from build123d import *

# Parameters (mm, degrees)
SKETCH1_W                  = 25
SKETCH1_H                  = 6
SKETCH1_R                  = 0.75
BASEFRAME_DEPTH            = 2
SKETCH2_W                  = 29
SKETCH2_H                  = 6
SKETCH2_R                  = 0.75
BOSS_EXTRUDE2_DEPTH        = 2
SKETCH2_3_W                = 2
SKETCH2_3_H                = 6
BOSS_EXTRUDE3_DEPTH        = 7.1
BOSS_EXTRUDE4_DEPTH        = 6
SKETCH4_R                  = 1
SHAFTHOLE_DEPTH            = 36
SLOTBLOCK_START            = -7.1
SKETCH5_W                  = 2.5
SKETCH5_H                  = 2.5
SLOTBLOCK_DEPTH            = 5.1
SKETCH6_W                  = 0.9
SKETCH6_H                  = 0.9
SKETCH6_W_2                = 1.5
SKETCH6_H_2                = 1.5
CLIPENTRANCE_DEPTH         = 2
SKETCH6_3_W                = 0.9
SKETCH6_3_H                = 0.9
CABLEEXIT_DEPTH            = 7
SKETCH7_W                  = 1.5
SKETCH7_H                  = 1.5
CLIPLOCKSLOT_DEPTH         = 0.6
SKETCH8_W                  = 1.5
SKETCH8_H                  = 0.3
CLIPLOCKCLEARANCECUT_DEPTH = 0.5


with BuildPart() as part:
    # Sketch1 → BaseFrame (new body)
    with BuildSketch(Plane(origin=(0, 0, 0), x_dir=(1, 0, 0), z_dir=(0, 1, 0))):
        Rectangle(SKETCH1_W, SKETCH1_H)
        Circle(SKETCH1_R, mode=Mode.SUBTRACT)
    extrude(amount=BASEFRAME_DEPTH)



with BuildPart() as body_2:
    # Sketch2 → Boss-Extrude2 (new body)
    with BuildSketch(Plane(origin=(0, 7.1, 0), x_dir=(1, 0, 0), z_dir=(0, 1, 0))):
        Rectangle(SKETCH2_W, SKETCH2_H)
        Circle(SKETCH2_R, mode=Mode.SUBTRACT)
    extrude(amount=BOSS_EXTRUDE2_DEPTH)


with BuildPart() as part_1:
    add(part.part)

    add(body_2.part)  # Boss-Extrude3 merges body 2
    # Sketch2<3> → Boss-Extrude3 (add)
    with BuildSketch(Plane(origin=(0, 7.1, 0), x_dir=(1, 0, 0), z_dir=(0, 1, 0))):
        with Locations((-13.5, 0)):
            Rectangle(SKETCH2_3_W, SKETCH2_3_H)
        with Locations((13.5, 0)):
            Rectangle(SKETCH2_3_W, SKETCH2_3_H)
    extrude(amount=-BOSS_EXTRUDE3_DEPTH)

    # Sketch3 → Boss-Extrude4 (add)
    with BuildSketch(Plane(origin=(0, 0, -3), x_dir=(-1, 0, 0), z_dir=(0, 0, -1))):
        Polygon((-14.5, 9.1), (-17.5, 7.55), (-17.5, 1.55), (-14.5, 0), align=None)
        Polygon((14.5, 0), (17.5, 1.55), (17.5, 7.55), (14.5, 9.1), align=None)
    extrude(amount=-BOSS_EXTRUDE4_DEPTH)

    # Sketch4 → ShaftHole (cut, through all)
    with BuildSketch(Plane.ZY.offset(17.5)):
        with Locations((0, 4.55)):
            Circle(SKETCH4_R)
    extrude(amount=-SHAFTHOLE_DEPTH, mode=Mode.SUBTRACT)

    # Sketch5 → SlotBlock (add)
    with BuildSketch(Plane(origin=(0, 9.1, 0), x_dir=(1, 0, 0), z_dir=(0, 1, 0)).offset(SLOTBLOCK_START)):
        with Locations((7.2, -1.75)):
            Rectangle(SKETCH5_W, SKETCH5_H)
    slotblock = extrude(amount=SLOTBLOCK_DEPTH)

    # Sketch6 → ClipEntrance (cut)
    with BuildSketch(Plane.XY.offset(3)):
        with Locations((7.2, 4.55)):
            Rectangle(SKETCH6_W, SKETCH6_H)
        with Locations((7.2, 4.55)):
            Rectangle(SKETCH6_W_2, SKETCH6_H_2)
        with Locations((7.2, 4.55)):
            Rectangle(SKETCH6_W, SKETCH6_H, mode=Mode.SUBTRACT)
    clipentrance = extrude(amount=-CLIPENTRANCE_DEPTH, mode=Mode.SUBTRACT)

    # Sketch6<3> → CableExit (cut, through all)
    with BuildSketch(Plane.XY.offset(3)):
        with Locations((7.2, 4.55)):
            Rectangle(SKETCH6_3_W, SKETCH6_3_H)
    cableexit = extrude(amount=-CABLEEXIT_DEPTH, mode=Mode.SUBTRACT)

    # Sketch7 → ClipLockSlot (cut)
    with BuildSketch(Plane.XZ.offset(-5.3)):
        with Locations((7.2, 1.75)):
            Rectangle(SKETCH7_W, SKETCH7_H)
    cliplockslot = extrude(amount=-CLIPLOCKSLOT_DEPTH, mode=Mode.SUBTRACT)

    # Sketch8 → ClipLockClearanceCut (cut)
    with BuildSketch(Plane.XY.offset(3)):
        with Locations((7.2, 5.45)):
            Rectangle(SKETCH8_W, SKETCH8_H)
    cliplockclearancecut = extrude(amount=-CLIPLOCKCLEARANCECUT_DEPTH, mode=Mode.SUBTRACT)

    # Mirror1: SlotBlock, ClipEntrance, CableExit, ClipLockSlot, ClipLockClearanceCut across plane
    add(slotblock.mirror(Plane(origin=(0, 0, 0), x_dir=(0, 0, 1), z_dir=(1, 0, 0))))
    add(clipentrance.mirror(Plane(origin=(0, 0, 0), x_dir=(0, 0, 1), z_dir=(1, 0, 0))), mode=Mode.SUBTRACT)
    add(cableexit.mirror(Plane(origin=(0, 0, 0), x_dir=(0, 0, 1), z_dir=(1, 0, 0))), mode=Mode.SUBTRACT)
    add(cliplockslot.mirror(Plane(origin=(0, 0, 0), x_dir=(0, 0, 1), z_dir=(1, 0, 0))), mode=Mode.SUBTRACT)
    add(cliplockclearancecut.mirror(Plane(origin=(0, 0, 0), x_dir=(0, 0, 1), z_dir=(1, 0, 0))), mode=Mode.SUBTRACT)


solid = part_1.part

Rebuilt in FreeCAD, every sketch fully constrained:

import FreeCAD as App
import Part
import Sketcher
from FreeCAD import Vector

doc = App.newDocument("Part")
params = doc.addObject("Spreadsheet::Sheet", "Params")
for row, (alias, value) in enumerate([
    ("sketch1_diameter", "1.5 mm"),
    ("sketch1_width", "25 mm"),
    ("sketch1_height", "6 mm"),
    ("pad1_length", "2 mm"),
    ("sketch2_diameter", "1.5 mm"),
    ("sketch2_width", "29 mm"),
    ("sketch2_height", "6 mm"),
    ("pad2_length", "2 mm"),
    ("sketch3_width", "2 mm"),
    ("sketch3_height", "6 mm"),
    ("pad3_length", "7.1 mm"),
    ("sketch4_height", "6 mm"),
    ("sketch4_height2", "9.1 mm"),
    ("pad4_length", "6 mm"),
    ("sketch5_diameter", "2 mm"),
    ("sketch6_width", "2.5 mm"),
    ("pad5_length", "5.1 mm"),
    ("sketch7_width", "1.5 mm"),
    ("sketch7_width2", "0.9 mm"),
    ("pocket2_length", "2 mm"),
    ("sketch8_width", "0.9 mm"),
    ("sketch9_width", "1.5 mm"),
    ("pocket4_length", "0.6 mm"),
    ("sketch10_width", "1.5 mm"),
    ("sketch10_height", "0.3 mm"),
    ("pocket5_length", "0.5 mm"),
], start=1):
    params.set(f"A{row}", alias)
    params.set(f"B{row}", "=" + value)
    params.setAlias(f"B{row}", alias)

body = doc.addObject("PartDesign::Body", "Body")

# Sketch on XZ plane
sketch1 = body.newObject("Sketcher::SketchObject", "Sketch")
sketch1.AttachmentSupport = (doc.getObject("XZ_Plane"), [""])
sketch1.MapMode = "FlatFace"
sketch1.addGeometry(Part.LineSegment(Vector(-12.5, -3, 0), Vector(-12.5, 3, 0)), False)
sketch1.addGeometry(Part.LineSegment(Vector(-12.5, 3, 0), Vector(12.5, 3, 0)), False)
sketch1.addGeometry(Part.LineSegment(Vector(12.5, 3, 0), Vector(12.5, -3, 0)), False)
sketch1.addGeometry(Part.LineSegment(Vector(12.5, -3, 0), Vector(-12.5, -3, 0)), False)
sketch1.addGeometry(Part.Circle(Vector(0, 0, 0), Vector(0, 0, 1), 0.75), False)
sketch1.addConstraint(Sketcher.Constraint("Coincident", 0, 2, 1, 1))
sketch1.addConstraint(Sketcher.Constraint("Coincident", 1, 2, 2, 1))
sketch1.addConstraint(Sketcher.Constraint("Coincident", 2, 2, 3, 1))
sketch1.addConstraint(Sketcher.Constraint("Coincident", 3, 2, 0, 1))
sketch1.addConstraint(Sketcher.Constraint("Vertical", 0))
sketch1.addConstraint(Sketcher.Constraint("Horizontal", 1))
sketch1.addConstraint(Sketcher.Constraint("Vertical", 2))
sketch1.addConstraint(Sketcher.Constraint("Horizontal", 3))
sketch1.addConstraint(Sketcher.Constraint("Coincident", 4, 3, -1, 1))
sketch1.addConstraint(Sketcher.Constraint("Symmetric", 0, 2, 2, 2, -1, 1))
sketch1.addConstraint(Sketcher.Constraint("Diameter", 4, 1.5))
sketch1.addConstraint(Sketcher.Constraint("DistanceX", 1, 1, 1, 2, 25.0))
sketch1.addConstraint(Sketcher.Constraint("DistanceY", 0, 1, 0, 2, 6.0))
sketch1.setExpression("Constraints[10]", "Params.sketch1_diameter")
sketch1.setExpression("Constraints[11]", "Params.sketch1_width")
sketch1.setExpression("Constraints[12]", "Params.sketch1_height")
pad1 = body.newObject("PartDesign::Pad", "Pad")
pad1.Profile = sketch1
pad1.setExpression("Length", "Params.pad1_length")
pad1.Reversed = True
body2 = doc.addObject("PartDesign::Body", "Body001")

# Sketch on XZ plane
sketch2 = body2.newObject("Sketcher::SketchObject", "Sketch001")
sketch2.AttachmentSupport = (doc.getObject("XZ_Plane001"), [""])
sketch2.MapMode = "FlatFace"
sketch2.AttachmentOffset = App.Placement(Vector(0, 0, -7.1), App.Rotation())
sketch2.addGeometry(Part.LineSegment(Vector(-14.5, -3, 0), Vector(-14.5, 3, 0)), False)
sketch2.addGeometry(Part.LineSegment(Vector(-14.5, 3, 0), Vector(14.5, 3, 0)), False)
sketch2.addGeometry(Part.LineSegment(Vector(14.5, 3, 0), Vector(14.5, -3, 0)), False)
sketch2.addGeometry(Part.LineSegment(Vector(14.5, -3, 0), Vector(-14.5, -3, 0)), False)
sketch2.addGeometry(Part.Circle(Vector(0, 0, 0), Vector(0, 0, 1), 0.75), False)
sketch2.addConstraint(Sketcher.Constraint("Coincident", 0, 2, 1, 1))
sketch2.addConstraint(Sketcher.Constraint("Coincident", 1, 2, 2, 1))
sketch2.addConstraint(Sketcher.Constraint("Coincident", 2, 2, 3, 1))
sketch2.addConstraint(Sketcher.Constraint("Coincident", 3, 2, 0, 1))
sketch2.addConstraint(Sketcher.Constraint("Vertical", 0))
sketch2.addConstraint(Sketcher.Constraint("Horizontal", 1))
sketch2.addConstraint(Sketcher.Constraint("Vertical", 2))
sketch2.addConstraint(Sketcher.Constraint("Horizontal", 3))
sketch2.addConstraint(Sketcher.Constraint("Coincident", 4, 3, -1, 1))
sketch2.addConstraint(Sketcher.Constraint("Symmetric", 0, 2, 2, 2, -1, 1))
sketch2.addConstraint(Sketcher.Constraint("Diameter", 4, 1.5))
sketch2.addConstraint(Sketcher.Constraint("DistanceX", 1, 1, 1, 2, 29.0))
sketch2.addConstraint(Sketcher.Constraint("DistanceY", 0, 1, 0, 2, 6.0))
sketch2.setExpression("Constraints[10]", "Params.sketch2_diameter")
sketch2.setExpression("Constraints[11]", "Params.sketch2_width")
sketch2.setExpression("Constraints[12]", "Params.sketch2_height")
pad2 = body2.newObject("PartDesign::Pad", "Pad001")
pad2.Profile = sketch2
pad2.setExpression("Length", "Params.pad2_length")
pad2.Reversed = True
body.AllowCompound = True
doc.recompute()

boolean = body.newObject("PartDesign::Boolean", "Boolean")
boolean.Type = "Fuse"
boolean.addObjects([body2])

# Sketch on XZ plane
sketch3 = body.newObject("Sketcher::SketchObject", "Sketch002")
sketch3.AttachmentSupport = (doc.getObject("XZ_Plane"), [""])
sketch3.MapMode = "FlatFace"
sketch3.AttachmentOffset = App.Placement(Vector(0, 0, -7.1), App.Rotation())
sketch3.addGeometry(Part.LineSegment(Vector(-14.5, -3, 0), Vector(-14.5, 3, 0)), False)
sketch3.addGeometry(Part.LineSegment(Vector(-14.5, 3, 0), Vector(-12.5, 3, 0)), False)
sketch3.addGeometry(Part.LineSegment(Vector(-12.5, 3, 0), Vector(-12.5, -3, 0)), False)
sketch3.addGeometry(Part.LineSegment(Vector(-12.5, -3, 0), Vector(-14.5, -3, 0)), False)
sketch3.addGeometry(Part.LineSegment(Vector(12.5, -3, 0), Vector(12.5, 3, 0)), False)
sketch3.addGeometry(Part.LineSegment(Vector(12.5, 3, 0), Vector(14.5, 3, 0)), False)
sketch3.addGeometry(Part.LineSegment(Vector(14.5, 3, 0), Vector(14.5, -3, 0)), False)
sketch3.addGeometry(Part.LineSegment(Vector(14.5, -3, 0), Vector(12.5, -3, 0)), False)
sketch3.addConstraint(Sketcher.Constraint("Coincident", 0, 2, 1, 1))
sketch3.addConstraint(Sketcher.Constraint("Coincident", 1, 2, 2, 1))
sketch3.addConstraint(Sketcher.Constraint("Coincident", 2, 2, 3, 1))
sketch3.addConstraint(Sketcher.Constraint("Coincident", 3, 2, 0, 1))
sketch3.addConstraint(Sketcher.Constraint("Coincident", 4, 2, 5, 1))
sketch3.addConstraint(Sketcher.Constraint("Coincident", 5, 2, 6, 1))
sketch3.addConstraint(Sketcher.Constraint("Coincident", 6, 2, 7, 1))
sketch3.addConstraint(Sketcher.Constraint("Coincident", 7, 2, 4, 1))
sketch3.addConstraint(Sketcher.Constraint("Vertical", 0))
sketch3.addConstraint(Sketcher.Constraint("Horizontal", 1))
sketch3.addConstraint(Sketcher.Constraint("Vertical", 2))
sketch3.addConstraint(Sketcher.Constraint("Horizontal", 3))
sketch3.addConstraint(Sketcher.Constraint("Vertical", 4))
sketch3.addConstraint(Sketcher.Constraint("Horizontal", 5))
sketch3.addConstraint(Sketcher.Constraint("Vertical", 6))
sketch3.addConstraint(Sketcher.Constraint("Horizontal", 7))
sketch3.addConstraint(Sketcher.Constraint("Symmetric", 2, 2, 4, 2, -1, 1))
sketch3.addConstraint(Sketcher.Constraint("Symmetric", 0, 2, 6, 2, -1, 1))
sketch3.addConstraint(Sketcher.Constraint("Horizontal", 1, 2, 4, 2))
sketch3.addConstraint(Sketcher.Constraint("DistanceX", 1, 1, 1, 2, 2.0))
sketch3.addConstraint(Sketcher.Constraint("DistanceY", 0, 1, 0, 2, 6.0))
sketch3.addConstraint(Sketcher.Constraint("DistanceX", 1, 2, 4, 2, 25.0))
sketch3.setExpression("Constraints[19]", "Params.sketch3_width")
sketch3.setExpression("Constraints[20]", "Params.sketch3_height")
pad3 = body.newObject("PartDesign::Pad", "Pad002")
pad3.Profile = sketch3
pad3.setExpression("Length", "Params.pad3_length")

# Sketch on XY plane
sketch4 = body.newObject("Sketcher::SketchObject", "Sketch003")
sketch4.AttachmentSupport = (doc.getObject("XY_Plane"), [""])
sketch4.MapMode = "FlatFace"
sketch4.AttachmentOffset = App.Placement(Vector(0, 0, -3), App.Rotation())
sketch4.addGeometry(Part.LineSegment(Vector(14.5, 9.1, 0), Vector(17.5, 7.55, 0)), False)
sketch4.addGeometry(Part.LineSegment(Vector(17.5, 7.55, 0), Vector(17.5, 1.55, 0)), False)
sketch4.addGeometry(Part.LineSegment(Vector(17.5, 1.55, 0), Vector(14.5, 0, 0)), False)
sketch4.addGeometry(Part.LineSegment(Vector(14.5, 0, 0), Vector(14.5, 9.1, 0)), False)
sketch4.addGeometry(Part.LineSegment(Vector(-14.5, 0, 0), Vector(-17.5, 1.55, 0)), False)
sketch4.addGeometry(Part.LineSegment(Vector(-17.5, 1.55, 0), Vector(-17.5, 7.55, 0)), False)
sketch4.addGeometry(Part.LineSegment(Vector(-17.5, 7.55, 0), Vector(-14.5, 9.1, 0)), False)
sketch4.addGeometry(Part.LineSegment(Vector(-14.5, 9.1, 0), Vector(-14.5, 0, 0)), False)
sketch4.addConstraint(Sketcher.Constraint("Coincident", 0, 2, 1, 1))
sketch4.addConstraint(Sketcher.Constraint("Coincident", 1, 2, 2, 1))
sketch4.addConstraint(Sketcher.Constraint("Coincident", 2, 2, 3, 1))
sketch4.addConstraint(Sketcher.Constraint("Coincident", 3, 2, 0, 1))
sketch4.addConstraint(Sketcher.Constraint("Coincident", 4, 2, 5, 1))
sketch4.addConstraint(Sketcher.Constraint("Coincident", 5, 2, 6, 1))
sketch4.addConstraint(Sketcher.Constraint("Coincident", 6, 2, 7, 1))
sketch4.addConstraint(Sketcher.Constraint("Coincident", 7, 2, 4, 1))
sketch4.addConstraint(Sketcher.Constraint("Vertical", 1))
sketch4.addConstraint(Sketcher.Constraint("Vertical", 3))
sketch4.addConstraint(Sketcher.Constraint("Vertical", 5))
sketch4.addConstraint(Sketcher.Constraint("Vertical", 7))
sketch4.addConstraint(Sketcher.Constraint("Symmetric", 2, 2, 7, 2, -1, 1))
sketch4.addConstraint(Sketcher.Constraint("Symmetric", 1, 2, 4, 2, -2))
sketch4.addConstraint(Sketcher.Constraint("PointOnObject", 2, 2, -1))
sketch4.addConstraint(Sketcher.Constraint("Parallel", 0, 4))
sketch4.addConstraint(Sketcher.Constraint("Parallel", 2, 6))
sketch4.addConstraint(Sketcher.Constraint("Horizontal", 0, 2, 5, 2))
sketch4.addConstraint(Sketcher.Constraint("DistanceY", 1, 2, 1, 1, 6.0))
sketch4.addConstraint(Sketcher.Constraint("DistanceY", 3, 1, 3, 2, 9.1))
sketch4.addConstraint(Sketcher.Constraint("DistanceX", 2, 2, 1, 2, 3.0))
sketch4.addConstraint(Sketcher.Constraint("DistanceX", 4, 2, 2, 2, 32.0))
sketch4.setExpression("Constraints[18]", "Params.sketch4_height")
sketch4.setExpression("Constraints[19]", "Params.sketch4_height2")
pad4 = body.newObject("PartDesign::Pad", "Pad003")
pad4.Profile = sketch4
pad4.setExpression("Length", "Params.pad4_length")

# Sketch on YZ plane
sketch5 = body.newObject("Sketcher::SketchObject", "Sketch004")
sketch5.AttachmentSupport = (doc.getObject("YZ_Plane"), [""])
sketch5.MapMode = "FlatFace"
sketch5.AttachmentOffset = App.Placement(Vector(0, 0, -17.5), App.Rotation())
sketch5.addGeometry(Part.Circle(Vector(4.55, 0, 0), Vector(0, 0, 1), 1), False)
sketch5.addConstraint(Sketcher.Constraint("PointOnObject", 0, 3, -1))
sketch5.addConstraint(Sketcher.Constraint("Diameter", 0, 2.0))
sketch5.addConstraint(Sketcher.Constraint("DistanceX", -1, 1, 0, 3, 4.55))
sketch5.setExpression("Constraints[1]", "Params.sketch5_diameter")
pocket1 = body.newObject("PartDesign::Pocket", "Pocket")
pocket1.Profile = sketch5
pocket1.Type = "ThroughAll"
pocket1.Reversed = True

# Sketch on XZ plane
sketch6 = body.newObject("Sketcher::SketchObject", "Sketch005")
sketch6.AttachmentSupport = (doc.getObject("XZ_Plane"), [""])
sketch6.MapMode = "FlatFace"
sketch6.AttachmentOffset = App.Placement(Vector(0, 0, -2), App.Rotation())
sketch6.addGeometry(Part.LineSegment(Vector(5.95, 0.5, 0), Vector(5.95, 3, 0)), False)
sketch6.addGeometry(Part.LineSegment(Vector(5.95, 3, 0), Vector(8.45, 3, 0)), False)
sketch6.addGeometry(Part.LineSegment(Vector(8.45, 3, 0), Vector(8.45, 0.5, 0)), False)
sketch6.addGeometry(Part.LineSegment(Vector(8.45, 0.5, 0), Vector(5.95, 0.5, 0)), False)
sketch6.addConstraint(Sketcher.Constraint("Coincident", 0, 2, 1, 1))
sketch6.addConstraint(Sketcher.Constraint("Coincident", 1, 2, 2, 1))
sketch6.addConstraint(Sketcher.Constraint("Coincident", 2, 2, 3, 1))
sketch6.addConstraint(Sketcher.Constraint("Coincident", 3, 2, 0, 1))
sketch6.addConstraint(Sketcher.Constraint("Vertical", 0))
sketch6.addConstraint(Sketcher.Constraint("Horizontal", 1))
sketch6.addConstraint(Sketcher.Constraint("Vertical", 2))
sketch6.addConstraint(Sketcher.Constraint("Horizontal", 3))
sketch6.addConstraint(Sketcher.Constraint("Equal", 3, 0))
sketch6.addConstraint(Sketcher.Constraint("DistanceX", 1, 1, 1, 2, 2.5))
sketch6.addConstraint(Sketcher.Constraint("DistanceY", -1, 1, 0, 2, 3.0))
sketch6.addConstraint(Sketcher.Constraint("DistanceX", -1, 1, 0, 2, 5.95))
sketch6.setExpression("Constraints[9]", "Params.sketch6_width")
pad5 = body.newObject("PartDesign::Pad", "Pad004")
pad5.Profile = sketch6
pad5.setExpression("Length", "Params.pad5_length")
pad5.Reversed = True

# Sketch on XY plane
sketch7 = body.newObject("Sketcher::SketchObject", "Sketch006")
sketch7.AttachmentSupport = (doc.getObject("XY_Plane"), [""])
sketch7.MapMode = "FlatFace"
sketch7.AttachmentOffset = App.Placement(Vector(0, 0, 3), App.Rotation())
sketch7.addGeometry(Part.LineSegment(Vector(6.45, 5.3, 0), Vector(6.45, 3.8, 0)), False)
sketch7.addGeometry(Part.LineSegment(Vector(6.45, 3.8, 0), Vector(7.95, 3.8, 0)), False)
sketch7.addGeometry(Part.LineSegment(Vector(7.95, 3.8, 0), Vector(7.95, 5.3, 0)), False)
sketch7.addGeometry(Part.LineSegment(Vector(7.95, 5.3, 0), Vector(6.45, 5.3, 0)), False)
sketch7.addGeometry(Part.LineSegment(Vector(7.65, 4.1, 0), Vector(6.75, 4.1, 0)), False)
sketch7.addGeometry(Part.LineSegment(Vector(6.75, 4.1, 0), Vector(6.75, 5, 0)), False)
sketch7.addGeometry(Part.LineSegment(Vector(6.75, 5, 0), Vector(7.65, 5, 0)), False)
sketch7.addGeometry(Part.LineSegment(Vector(7.65, 5, 0), Vector(7.65, 4.1, 0)), False)
sketch7.addConstraint(Sketcher.Constraint("Coincident", 0, 2, 1, 1))
sketch7.addConstraint(Sketcher.Constraint("Coincident", 1, 2, 2, 1))
sketch7.addConstraint(Sketcher.Constraint("Coincident", 2, 2, 3, 1))
sketch7.addConstraint(Sketcher.Constraint("Coincident", 3, 2, 0, 1))
sketch7.addConstraint(Sketcher.Constraint("Coincident", 4, 2, 5, 1))
sketch7.addConstraint(Sketcher.Constraint("Coincident", 5, 2, 6, 1))
sketch7.addConstraint(Sketcher.Constraint("Coincident", 6, 2, 7, 1))
sketch7.addConstraint(Sketcher.Constraint("Coincident", 7, 2, 4, 1))
sketch7.addConstraint(Sketcher.Constraint("Vertical", 0))
sketch7.addConstraint(Sketcher.Constraint("Horizontal", 1))
sketch7.addConstraint(Sketcher.Constraint("Vertical", 2))
sketch7.addConstraint(Sketcher.Constraint("Horizontal", 3))
sketch7.addConstraint(Sketcher.Constraint("Horizontal", 4))
sketch7.addConstraint(Sketcher.Constraint("Vertical", 5))
sketch7.addConstraint(Sketcher.Constraint("Horizontal", 6))
sketch7.addConstraint(Sketcher.Constraint("Vertical", 7))
sketch7.addConstraint(Sketcher.Constraint("Equal", 3, 0))
sketch7.addConstraint(Sketcher.Constraint("Equal", 6, 5))
sketch7.addConstraint(Sketcher.Constraint("DistanceX", 1, 1, 1, 2, 1.5))
sketch7.addConstraint(Sketcher.Constraint("DistanceX", 4, 2, 4, 1, 0.9))
sketch7.addConstraint(Sketcher.Constraint("DistanceY", -1, 1, 5, 2, 5.0))
sketch7.addConstraint(Sketcher.Constraint("DistanceY", -1, 1, 0, 2, 3.8))
sketch7.addConstraint(Sketcher.Constraint("DistanceX", 0, 2, 4, 2, 0.3))
sketch7.addConstraint(Sketcher.Constraint("DistanceX", -1, 1, 0, 2, 6.45))
sketch7.setExpression("Constraints[18]", "Params.sketch7_width")
sketch7.setExpression("Constraints[19]", "Params.sketch7_width2")
pocket2 = body.newObject("PartDesign::Pocket", "Pocket001")
pocket2.Profile = sketch7
pocket2.setExpression("Length", "Params.pocket2_length")

# Sketch on XY plane
sketch8 = body.newObject("Sketcher::SketchObject", "Sketch007")
sketch8.AttachmentSupport = (doc.getObject("XY_Plane"), [""])
sketch8.MapMode = "FlatFace"
sketch8.AttachmentOffset = App.Placement(Vector(0, 0, 3), App.Rotation())
sketch8.addGeometry(Part.LineSegment(Vector(6.75, 5, 0), Vector(6.75, 4.1, 0)), False)
sketch8.addGeometry(Part.LineSegment(Vector(6.75, 4.1, 0), Vector(7.65, 4.1, 0)), False)
sketch8.addGeometry(Part.LineSegment(Vector(7.65, 4.1, 0), Vector(7.65, 5, 0)), False)
sketch8.addGeometry(Part.LineSegment(Vector(7.65, 5, 0), Vector(6.75, 5, 0)), False)
sketch8.addConstraint(Sketcher.Constraint("Coincident", 0, 2, 1, 1))
sketch8.addConstraint(Sketcher.Constraint("Coincident", 1, 2, 2, 1))
sketch8.addConstraint(Sketcher.Constraint("Coincident", 2, 2, 3, 1))
sketch8.addConstraint(Sketcher.Constraint("Coincident", 3, 2, 0, 1))
sketch8.addConstraint(Sketcher.Constraint("Vertical", 0))
sketch8.addConstraint(Sketcher.Constraint("Horizontal", 1))
sketch8.addConstraint(Sketcher.Constraint("Vertical", 2))
sketch8.addConstraint(Sketcher.Constraint("Horizontal", 3))
sketch8.addConstraint(Sketcher.Constraint("Equal", 3, 0))
sketch8.addConstraint(Sketcher.Constraint("DistanceX", 1, 1, 1, 2, 0.9))
sketch8.addConstraint(Sketcher.Constraint("DistanceY", -1, 1, 2, 2, 5.0))
sketch8.addConstraint(Sketcher.Constraint("DistanceX", -1, 1, 0, 2, 6.75))
sketch8.setExpression("Constraints[9]", "Params.sketch8_width")
pocket3 = body.newObject("PartDesign::Pocket", "Pocket002")
pocket3.Profile = sketch8
pocket3.Type = "ThroughAll"

# Sketch on XZ plane
sketch9 = body.newObject("Sketcher::SketchObject", "Sketch008")
sketch9.AttachmentSupport = (doc.getObject("XZ_Plane"), [""])
sketch9.MapMode = "FlatFace"
sketch9.AttachmentOffset = App.Placement(Vector(0, 0, -5.3), App.Rotation())
sketch9.addGeometry(Part.LineSegment(Vector(6.45, 2.5, 0), Vector(6.45, 1, 0)), False)
sketch9.addGeometry(Part.LineSegment(Vector(6.45, 1, 0), Vector(7.95, 1, 0)), False)
sketch9.addGeometry(Part.LineSegment(Vector(7.95, 1, 0), Vector(7.95, 2.5, 0)), False)
sketch9.addGeometry(Part.LineSegment(Vector(7.95, 2.5, 0), Vector(6.45, 2.5, 0)), False)
sketch9.addConstraint(Sketcher.Constraint("Coincident", 0, 2, 1, 1))
sketch9.addConstraint(Sketcher.Constraint("Coincident", 1, 2, 2, 1))
sketch9.addConstraint(Sketcher.Constraint("Coincident", 2, 2, 3, 1))
sketch9.addConstraint(Sketcher.Constraint("Coincident", 3, 2, 0, 1))
sketch9.addConstraint(Sketcher.Constraint("Vertical", 0))
sketch9.addConstraint(Sketcher.Constraint("Horizontal", 1))
sketch9.addConstraint(Sketcher.Constraint("Vertical", 2))
sketch9.addConstraint(Sketcher.Constraint("Horizontal", 3))
sketch9.addConstraint(Sketcher.Constraint("Equal", 3, 0))
sketch9.addConstraint(Sketcher.Constraint("DistanceX", 1, 1, 1, 2, 1.5))
sketch9.addConstraint(Sketcher.Constraint("DistanceY", -1, 1, 0, 2, 1.0))
sketch9.addConstraint(Sketcher.Constraint("DistanceX", -1, 1, 0, 2, 6.45))
sketch9.setExpression("Constraints[9]", "Params.sketch9_width")
pocket4 = body.newObject("PartDesign::Pocket", "Pocket003")
pocket4.Profile = sketch9
pocket4.setExpression("Length", "Params.pocket4_length")

# Sketch on XY plane
sketch10 = body.newObject("Sketcher::SketchObject", "Sketch009")
sketch10.AttachmentSupport = (doc.getObject("XY_Plane"), [""])
sketch10.MapMode = "FlatFace"
sketch10.AttachmentOffset = App.Placement(Vector(0, 0, 3), App.Rotation())
sketch10.addGeometry(Part.LineSegment(Vector(6.45, 5.6, 0), Vector(6.45, 5.3, 0)), False)
sketch10.addGeometry(Part.LineSegment(Vector(6.45, 5.3, 0), Vector(7.95, 5.3, 0)), False)
sketch10.addGeometry(Part.LineSegment(Vector(7.95, 5.3, 0), Vector(7.95, 5.6, 0)), False)
sketch10.addGeometry(Part.LineSegment(Vector(7.95, 5.6, 0), Vector(6.45, 5.6, 0)), False)
sketch10.addConstraint(Sketcher.Constraint("Coincident", 0, 2, 1, 1))
sketch10.addConstraint(Sketcher.Constraint("Coincident", 1, 2, 2, 1))
sketch10.addConstraint(Sketcher.Constraint("Coincident", 2, 2, 3, 1))
sketch10.addConstraint(Sketcher.Constraint("Coincident", 3, 2, 0, 1))
sketch10.addConstraint(Sketcher.Constraint("Vertical", 0))
sketch10.addConstraint(Sketcher.Constraint("Horizontal", 1))
sketch10.addConstraint(Sketcher.Constraint("Vertical", 2))
sketch10.addConstraint(Sketcher.Constraint("Horizontal", 3))
sketch10.addConstraint(Sketcher.Constraint("DistanceX", 1, 1, 1, 2, 1.5))
sketch10.addConstraint(Sketcher.Constraint("DistanceY", 0, 2, 0, 1, 0.3))
sketch10.addConstraint(Sketcher.Constraint("DistanceY", -1, 1, 0, 2, 5.3))
sketch10.addConstraint(Sketcher.Constraint("DistanceX", -1, 1, 0, 2, 6.45))
sketch10.setExpression("Constraints[8]", "Params.sketch10_width")
sketch10.setExpression("Constraints[9]", "Params.sketch10_height")
pocket5 = body.newObject("PartDesign::Pocket", "Pocket004")
pocket5.Profile = sketch10
pocket5.setExpression("Length", "Params.pocket5_length")
doc.recompute()

mirrored = body.newObject("PartDesign::Mirrored", "Mirrored")
mirrored.Originals = [pad5, pocket2, pocket3, pocket4, pocket5]
mirrored.MirrorPlane = (doc.getObject("YZ_Plane"), [""])
body.Tip = mirrored

doc.recompute()
